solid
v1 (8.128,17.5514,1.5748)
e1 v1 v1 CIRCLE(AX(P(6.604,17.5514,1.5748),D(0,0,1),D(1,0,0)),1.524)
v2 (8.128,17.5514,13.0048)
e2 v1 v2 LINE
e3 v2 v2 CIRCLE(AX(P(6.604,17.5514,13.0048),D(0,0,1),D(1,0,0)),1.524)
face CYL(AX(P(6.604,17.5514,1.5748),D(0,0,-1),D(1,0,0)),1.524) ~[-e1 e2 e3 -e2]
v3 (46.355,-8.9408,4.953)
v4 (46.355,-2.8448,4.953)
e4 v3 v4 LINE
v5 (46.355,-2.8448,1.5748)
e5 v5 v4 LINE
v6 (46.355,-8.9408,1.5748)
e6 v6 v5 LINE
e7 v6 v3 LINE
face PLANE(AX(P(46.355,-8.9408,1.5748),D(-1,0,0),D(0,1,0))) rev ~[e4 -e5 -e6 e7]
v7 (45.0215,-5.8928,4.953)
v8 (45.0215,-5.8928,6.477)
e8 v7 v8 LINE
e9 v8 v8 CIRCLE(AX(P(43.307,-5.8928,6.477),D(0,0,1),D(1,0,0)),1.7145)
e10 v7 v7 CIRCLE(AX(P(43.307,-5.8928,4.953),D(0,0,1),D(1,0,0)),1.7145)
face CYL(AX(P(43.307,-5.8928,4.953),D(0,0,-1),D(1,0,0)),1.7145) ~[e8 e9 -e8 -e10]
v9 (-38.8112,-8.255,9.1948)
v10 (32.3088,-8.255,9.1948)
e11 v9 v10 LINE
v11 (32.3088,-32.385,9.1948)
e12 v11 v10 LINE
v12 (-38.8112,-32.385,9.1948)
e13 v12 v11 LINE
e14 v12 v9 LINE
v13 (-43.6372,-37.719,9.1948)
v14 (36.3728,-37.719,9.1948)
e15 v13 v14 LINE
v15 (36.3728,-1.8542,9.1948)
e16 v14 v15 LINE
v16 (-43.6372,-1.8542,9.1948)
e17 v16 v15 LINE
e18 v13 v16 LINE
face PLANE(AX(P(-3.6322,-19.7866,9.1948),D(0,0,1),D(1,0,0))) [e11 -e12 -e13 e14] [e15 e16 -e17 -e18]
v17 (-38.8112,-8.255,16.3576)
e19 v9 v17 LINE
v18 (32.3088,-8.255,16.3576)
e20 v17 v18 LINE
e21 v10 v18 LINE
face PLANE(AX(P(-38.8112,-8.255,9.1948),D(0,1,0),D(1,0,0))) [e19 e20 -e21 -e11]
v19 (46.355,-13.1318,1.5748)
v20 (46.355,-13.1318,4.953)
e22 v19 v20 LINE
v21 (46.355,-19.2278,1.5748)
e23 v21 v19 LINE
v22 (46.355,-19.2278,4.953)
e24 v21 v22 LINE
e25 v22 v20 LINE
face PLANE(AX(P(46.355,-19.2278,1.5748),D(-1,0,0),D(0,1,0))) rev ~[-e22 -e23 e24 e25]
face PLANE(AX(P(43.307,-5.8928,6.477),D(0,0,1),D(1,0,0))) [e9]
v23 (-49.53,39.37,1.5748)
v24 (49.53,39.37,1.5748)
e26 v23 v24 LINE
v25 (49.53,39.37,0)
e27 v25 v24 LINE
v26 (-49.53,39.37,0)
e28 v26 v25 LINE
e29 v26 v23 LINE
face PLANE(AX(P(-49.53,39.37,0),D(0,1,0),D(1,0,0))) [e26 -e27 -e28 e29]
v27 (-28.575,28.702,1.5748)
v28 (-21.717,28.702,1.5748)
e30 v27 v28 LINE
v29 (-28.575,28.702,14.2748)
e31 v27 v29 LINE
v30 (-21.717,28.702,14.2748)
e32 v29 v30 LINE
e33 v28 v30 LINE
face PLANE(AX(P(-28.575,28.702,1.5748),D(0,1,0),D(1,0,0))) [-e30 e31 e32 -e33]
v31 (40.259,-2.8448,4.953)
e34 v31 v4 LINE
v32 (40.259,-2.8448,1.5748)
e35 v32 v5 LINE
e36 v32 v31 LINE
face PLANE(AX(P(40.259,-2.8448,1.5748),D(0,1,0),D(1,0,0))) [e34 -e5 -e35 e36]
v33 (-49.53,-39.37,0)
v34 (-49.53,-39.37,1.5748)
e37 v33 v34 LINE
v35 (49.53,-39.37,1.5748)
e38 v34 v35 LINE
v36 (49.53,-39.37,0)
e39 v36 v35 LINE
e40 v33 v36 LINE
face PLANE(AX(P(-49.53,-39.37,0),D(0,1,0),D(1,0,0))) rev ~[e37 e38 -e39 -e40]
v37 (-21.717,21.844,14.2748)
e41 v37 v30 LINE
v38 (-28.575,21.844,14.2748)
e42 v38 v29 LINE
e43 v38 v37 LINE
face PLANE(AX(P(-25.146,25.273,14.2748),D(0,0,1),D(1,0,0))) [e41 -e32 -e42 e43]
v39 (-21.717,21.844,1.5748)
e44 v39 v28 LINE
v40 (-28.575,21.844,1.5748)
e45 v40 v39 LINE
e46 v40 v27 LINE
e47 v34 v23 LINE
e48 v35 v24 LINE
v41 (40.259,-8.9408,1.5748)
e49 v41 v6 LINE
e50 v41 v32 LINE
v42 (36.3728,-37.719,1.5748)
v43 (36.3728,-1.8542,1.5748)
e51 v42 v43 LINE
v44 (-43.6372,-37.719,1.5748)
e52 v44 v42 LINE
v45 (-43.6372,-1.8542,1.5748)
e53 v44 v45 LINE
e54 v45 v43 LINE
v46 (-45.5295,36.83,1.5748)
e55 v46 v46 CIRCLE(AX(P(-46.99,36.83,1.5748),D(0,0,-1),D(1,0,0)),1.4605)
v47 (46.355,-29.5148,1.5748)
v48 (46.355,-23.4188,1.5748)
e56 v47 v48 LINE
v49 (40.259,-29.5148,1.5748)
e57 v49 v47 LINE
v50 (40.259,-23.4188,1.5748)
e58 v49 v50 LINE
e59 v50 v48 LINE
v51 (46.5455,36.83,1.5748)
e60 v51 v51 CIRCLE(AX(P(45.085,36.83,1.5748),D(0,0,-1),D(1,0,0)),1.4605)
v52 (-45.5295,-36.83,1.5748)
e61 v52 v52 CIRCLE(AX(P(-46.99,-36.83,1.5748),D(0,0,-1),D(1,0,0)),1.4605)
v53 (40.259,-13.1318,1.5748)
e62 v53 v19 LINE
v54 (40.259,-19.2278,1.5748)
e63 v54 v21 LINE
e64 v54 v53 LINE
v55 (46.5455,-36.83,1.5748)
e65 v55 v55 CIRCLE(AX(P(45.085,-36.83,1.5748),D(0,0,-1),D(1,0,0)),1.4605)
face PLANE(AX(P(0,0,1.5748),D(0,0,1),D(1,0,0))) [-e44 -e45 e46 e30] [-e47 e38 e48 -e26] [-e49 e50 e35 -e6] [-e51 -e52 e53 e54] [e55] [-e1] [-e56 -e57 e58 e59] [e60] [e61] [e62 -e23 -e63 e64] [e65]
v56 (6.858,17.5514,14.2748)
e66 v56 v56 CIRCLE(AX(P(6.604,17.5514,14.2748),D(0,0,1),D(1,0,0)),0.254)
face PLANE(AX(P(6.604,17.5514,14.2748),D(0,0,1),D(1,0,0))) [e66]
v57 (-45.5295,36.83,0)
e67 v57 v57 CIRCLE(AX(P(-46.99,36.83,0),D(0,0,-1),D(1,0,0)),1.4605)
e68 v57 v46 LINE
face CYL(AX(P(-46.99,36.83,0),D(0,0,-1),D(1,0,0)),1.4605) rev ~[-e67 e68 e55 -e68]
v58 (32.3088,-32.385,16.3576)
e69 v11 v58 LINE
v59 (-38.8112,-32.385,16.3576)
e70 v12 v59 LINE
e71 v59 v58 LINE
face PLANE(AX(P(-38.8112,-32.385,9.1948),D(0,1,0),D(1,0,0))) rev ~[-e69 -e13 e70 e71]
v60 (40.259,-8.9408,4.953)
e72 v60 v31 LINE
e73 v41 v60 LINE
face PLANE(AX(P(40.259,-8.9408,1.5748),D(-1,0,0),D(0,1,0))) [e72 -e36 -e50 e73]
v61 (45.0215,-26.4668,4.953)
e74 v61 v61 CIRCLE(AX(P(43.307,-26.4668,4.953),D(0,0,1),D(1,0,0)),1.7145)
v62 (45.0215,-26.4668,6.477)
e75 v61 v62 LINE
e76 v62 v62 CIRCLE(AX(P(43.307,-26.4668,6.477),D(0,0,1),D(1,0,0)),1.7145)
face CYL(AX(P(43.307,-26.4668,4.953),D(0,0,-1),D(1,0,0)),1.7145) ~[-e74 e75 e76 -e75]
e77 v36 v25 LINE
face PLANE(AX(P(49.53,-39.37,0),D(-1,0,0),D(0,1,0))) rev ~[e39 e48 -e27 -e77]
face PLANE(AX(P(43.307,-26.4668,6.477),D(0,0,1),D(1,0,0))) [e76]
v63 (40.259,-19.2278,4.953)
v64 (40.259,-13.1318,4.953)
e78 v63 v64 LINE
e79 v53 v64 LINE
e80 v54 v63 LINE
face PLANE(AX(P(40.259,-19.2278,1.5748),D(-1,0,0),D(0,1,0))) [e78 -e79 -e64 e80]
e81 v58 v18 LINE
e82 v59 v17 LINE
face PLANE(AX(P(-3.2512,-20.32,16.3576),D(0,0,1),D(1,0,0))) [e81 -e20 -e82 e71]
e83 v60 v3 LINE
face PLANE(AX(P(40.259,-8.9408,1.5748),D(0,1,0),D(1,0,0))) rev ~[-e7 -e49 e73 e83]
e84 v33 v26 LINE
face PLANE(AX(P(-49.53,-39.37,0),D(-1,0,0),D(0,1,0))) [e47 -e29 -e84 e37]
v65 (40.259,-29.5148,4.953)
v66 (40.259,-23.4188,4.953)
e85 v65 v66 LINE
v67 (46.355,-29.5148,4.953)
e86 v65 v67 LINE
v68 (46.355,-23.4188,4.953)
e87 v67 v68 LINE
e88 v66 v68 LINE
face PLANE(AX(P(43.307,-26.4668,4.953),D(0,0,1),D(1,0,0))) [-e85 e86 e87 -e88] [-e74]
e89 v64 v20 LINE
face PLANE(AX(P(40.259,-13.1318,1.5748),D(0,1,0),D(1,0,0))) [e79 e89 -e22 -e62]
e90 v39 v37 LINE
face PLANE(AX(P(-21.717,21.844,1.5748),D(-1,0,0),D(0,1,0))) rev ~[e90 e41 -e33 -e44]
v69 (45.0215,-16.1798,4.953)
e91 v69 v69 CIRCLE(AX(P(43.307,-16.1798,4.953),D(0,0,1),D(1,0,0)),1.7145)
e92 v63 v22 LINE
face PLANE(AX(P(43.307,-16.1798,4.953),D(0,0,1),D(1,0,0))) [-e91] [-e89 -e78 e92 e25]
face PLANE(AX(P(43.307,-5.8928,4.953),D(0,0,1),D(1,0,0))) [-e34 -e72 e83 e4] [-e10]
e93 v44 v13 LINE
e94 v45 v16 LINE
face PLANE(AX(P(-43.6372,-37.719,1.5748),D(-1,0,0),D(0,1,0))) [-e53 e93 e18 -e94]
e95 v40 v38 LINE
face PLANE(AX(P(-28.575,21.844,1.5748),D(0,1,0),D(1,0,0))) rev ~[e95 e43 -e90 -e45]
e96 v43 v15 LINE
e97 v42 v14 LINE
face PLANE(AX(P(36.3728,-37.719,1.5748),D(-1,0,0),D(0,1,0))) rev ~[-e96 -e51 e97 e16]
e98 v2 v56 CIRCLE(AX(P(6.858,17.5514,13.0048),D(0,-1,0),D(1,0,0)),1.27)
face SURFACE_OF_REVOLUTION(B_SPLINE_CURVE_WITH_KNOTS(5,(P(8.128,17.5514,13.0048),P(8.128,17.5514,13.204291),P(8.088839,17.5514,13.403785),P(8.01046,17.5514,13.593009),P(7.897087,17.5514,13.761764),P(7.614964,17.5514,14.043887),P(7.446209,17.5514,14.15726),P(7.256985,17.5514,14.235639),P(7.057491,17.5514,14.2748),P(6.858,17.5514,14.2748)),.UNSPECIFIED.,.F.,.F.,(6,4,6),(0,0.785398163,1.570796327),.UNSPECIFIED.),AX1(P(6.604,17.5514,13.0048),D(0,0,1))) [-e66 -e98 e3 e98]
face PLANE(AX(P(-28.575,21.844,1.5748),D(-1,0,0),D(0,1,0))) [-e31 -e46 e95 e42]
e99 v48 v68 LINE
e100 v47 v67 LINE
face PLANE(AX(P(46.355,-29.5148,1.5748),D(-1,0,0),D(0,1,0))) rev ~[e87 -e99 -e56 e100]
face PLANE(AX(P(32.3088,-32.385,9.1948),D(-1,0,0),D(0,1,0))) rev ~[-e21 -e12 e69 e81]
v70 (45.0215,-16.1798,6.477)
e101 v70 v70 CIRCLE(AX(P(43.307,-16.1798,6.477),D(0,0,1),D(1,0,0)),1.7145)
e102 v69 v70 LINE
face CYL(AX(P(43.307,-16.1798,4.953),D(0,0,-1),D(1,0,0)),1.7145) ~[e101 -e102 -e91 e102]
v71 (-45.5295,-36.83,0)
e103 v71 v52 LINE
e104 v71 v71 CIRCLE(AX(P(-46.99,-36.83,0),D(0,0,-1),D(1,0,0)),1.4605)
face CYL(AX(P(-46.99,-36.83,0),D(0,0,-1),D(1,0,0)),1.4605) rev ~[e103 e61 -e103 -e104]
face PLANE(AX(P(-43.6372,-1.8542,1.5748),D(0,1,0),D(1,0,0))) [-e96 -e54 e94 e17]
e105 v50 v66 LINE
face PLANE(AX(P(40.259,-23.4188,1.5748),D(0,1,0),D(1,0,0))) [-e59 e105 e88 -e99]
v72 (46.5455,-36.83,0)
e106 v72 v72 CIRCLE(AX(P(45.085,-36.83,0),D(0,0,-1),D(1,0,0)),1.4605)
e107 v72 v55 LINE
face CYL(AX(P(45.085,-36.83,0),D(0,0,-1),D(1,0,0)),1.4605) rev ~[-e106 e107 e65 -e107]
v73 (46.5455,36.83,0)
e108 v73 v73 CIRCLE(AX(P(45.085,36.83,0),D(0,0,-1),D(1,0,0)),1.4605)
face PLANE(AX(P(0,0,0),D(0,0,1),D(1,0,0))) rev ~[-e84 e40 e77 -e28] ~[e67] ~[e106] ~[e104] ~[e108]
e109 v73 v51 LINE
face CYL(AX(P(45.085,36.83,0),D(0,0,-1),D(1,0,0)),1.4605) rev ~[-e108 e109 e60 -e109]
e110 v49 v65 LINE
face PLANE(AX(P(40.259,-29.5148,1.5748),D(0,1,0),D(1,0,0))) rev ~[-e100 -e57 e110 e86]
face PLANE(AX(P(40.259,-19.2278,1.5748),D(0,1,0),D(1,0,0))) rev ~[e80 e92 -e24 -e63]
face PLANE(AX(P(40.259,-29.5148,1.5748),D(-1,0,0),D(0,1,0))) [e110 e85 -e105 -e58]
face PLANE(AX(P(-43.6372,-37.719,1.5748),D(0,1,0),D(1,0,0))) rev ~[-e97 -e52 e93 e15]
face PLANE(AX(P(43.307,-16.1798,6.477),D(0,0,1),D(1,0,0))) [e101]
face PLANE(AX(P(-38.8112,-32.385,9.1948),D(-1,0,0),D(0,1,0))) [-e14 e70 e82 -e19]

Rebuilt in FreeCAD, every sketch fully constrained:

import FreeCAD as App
import Part
import Sketcher
Q = App.Units.Quantity


def edges_at(feature, points):
    """Names of the edges that pass closest to the given points."""
    edges = feature.Shape.Edges
    near = lambda p: min(range(len(edges)), key=lambda i: edges[i].distToShape(Part.Vertex(*p))[0])
    return sorted({f"Edge{near(p) + 1}" for p in points})


def add_polygon(sketch, points):
    """Adds a closed chain of lines whose ends are joined by coincident constraints."""
    first, n = sketch.GeometryCount, len(points)
    for a, b in zip(points, points[1:] + points[:1]):
        sketch.addGeometry(Part.LineSegment(App.Vector(*a, 0), App.Vector(*b, 0)), False)
    for i in range(n):
        sketch.addConstraint(Sketcher.Constraint("Coincident", first + i, 2, first + (i + 1) % n, 1))

doc = App.newDocument("Part")
body = doc.addObject("PartDesign::Body", "Body")

# Sketch on XY plane
sketch1 = body.newObject("Sketcher::SketchObject", "Sketch")
sketch1.AttachmentSupport = (doc.getObject("XY_Plane"), [""])
sketch1.MapMode = "FlatFace"
add_polygon(sketch1, [(-49.53, 39.37), (-49.53, -39.37), (49.53, -39.37), (49.53, 39.37)])  # lines 0-3
sketch1.addConstraint(Sketcher.Constraint("Vertical", 0))
sketch1.addConstraint(Sketcher.Constraint("Horizontal", 1))
sketch1.addConstraint(Sketcher.Constraint("Vertical", 2))
sketch1.addConstraint(Sketcher.Constraint("Horizontal", 3))
sketch1.addConstraint(Sketcher.Constraint("Symmetric", 0, 2, 2, 2, -1, 1))
sketch1.addConstraint(Sketcher.Constraint("DistanceX", 1, 1, 1, 2, Q("3.9 in")))
sketch1.addConstraint(Sketcher.Constraint("DistanceY", 0, 2, 0, 1, Q("3.1 in")))
pad1 = body.newObject("PartDesign::Pad", "Pad")
pad1.Profile = sketch1
pad1.Length = Q("0.062 in")

# Sketch on XY plane
sketch2 = body.newObject("Sketcher::SketchObject", "Sketch001")
sketch2.AttachmentSupport = (doc.getObject("XY_Plane"), [""])
sketch2.MapMode = "FlatFace"
sketch2.AttachmentOffset = App.Placement(App.Vector(0, 0, 0.062 * 25.4), App.Rotation())
add_polygon(sketch2, [(-43.6372, -1.8542), (-43.6372, -37.719), (36.3728, -37.719), (36.3728, -1.8542)])  # lines 0-3
sketch2.addConstraint(Sketcher.Constraint("Vertical", 0))
sketch2.addConstraint(Sketcher.Constraint("Horizontal", 1))
sketch2.addConstraint(Sketcher.Constraint("Vertical", 2))
sketch2.addConstraint(Sketcher.Constraint("Horizontal", 3))
sketch2.addConstraint(Sketcher.Constraint("DistanceX", 1, 1, 1, 2, Q("3.15 in")))
sketch2.addConstraint(Sketcher.Constraint("DistanceY", 0, 2, 0, 1, Q("1.412 in")))
sketch2.addConstraint(Sketcher.Constraint("DistanceX", 0, 2, -1, 1, Q("1.718 in")))
sketch2.addConstraint(Sketcher.Constraint("DistanceY", 0, 2, -1, 1, Q("1.485 in")))
pad2 = body.newObject("PartDesign::Pad", "Pad001")
pad2.Profile = sketch2
pad2.Length = Q("0.3 in")

# Sketch on XY plane
sketch3 = body.newObject("Sketcher::SketchObject", "Sketch002")
sketch3.AttachmentSupport = (doc.getObject("XY_Plane"), [""])
sketch3.MapMode = "FlatFace"
sketch3.AttachmentOffset = App.Placement(App.Vector(0, 0, 0.362 * 25.4), App.Rotation())
add_polygon(sketch3, [(-38.8112, -8.255), (-38.8112, -32.385), (32.3088, -32.385), (32.3088, -8.255)])  # lines 0-3
sketch3.addConstraint(Sketcher.Constraint("Vertical", 0))
sketch3.addConstraint(Sketcher.Constraint("Horizontal", 1))
sketch3.addConstraint(Sketcher.Constraint("Vertical", 2))
sketch3.addConstraint(Sketcher.Constraint("Horizontal", 3))
sketch3.addConstraint(Sketcher.Constraint("DistanceX", 1, 1, 1, 2, Q("2.8 in")))
sketch3.addConstraint(Sketcher.Constraint("DistanceY", 0, 2, 0, 1, Q("0.95 in")))
sketch3.addConstraint(Sketcher.Constraint("DistanceX", 0, 2, -1, 1, Q("1.528 in")))
sketch3.addConstraint(Sketcher.Constraint("DistanceY", 0, 2, -1, 1, Q("1.275 in")))
pad3 = body.newObject("PartDesign::Pad", "Pad002")
pad3.Profile = sketch3
pad3.Length = Q("0.282 in")

# Sketch on XY plane
sketch4 = body.newObject("Sketcher::SketchObject", "Sketch003")
sketch4.AttachmentSupport = (doc.getObject("XY_Plane"), [""])
sketch4.MapMode = "FlatFace"
sketch4.AttachmentOffset = App.Placement(App.Vector(0, 0, 0.062 * 25.4), App.Rotation())
add_polygon(sketch4, [(40.259, -23.4188), (40.259, -29.5148), (46.355, -29.5148), (46.355, -23.4188)])  # lines 0-3
add_polygon(sketch4, [(40.259, -13.1318), (40.259, -19.2278), (46.355, -19.2278), (46.355, -13.1318)])  # lines 4-7
add_polygon(sketch4, [(40.259, -2.8448), (40.259, -8.9408), (46.355, -8.9408), (46.355, -2.8448)])  # lines 8-11
sketch4.addConstraint(Sketcher.Constraint("Vertical", 0))
sketch4.addConstraint(Sketcher.Constraint("Horizontal", 1))
sketch4.addConstraint(Sketcher.Constraint("Vertical", 2))
sketch4.addConstraint(Sketcher.Constraint("Horizontal", 3))
sketch4.addConstraint(Sketcher.Constraint("Vertical", 4))
sketch4.addConstraint(Sketcher.Constraint("Horizontal", 5))
sketch4.addConstraint(Sketcher.Constraint("Vertical", 6))
sketch4.addConstraint(Sketcher.Constraint("Horizontal", 7))
sketch4.addConstraint(Sketcher.Constraint("Vertical", 8))
sketch4.addConstraint(Sketcher.Constraint("Horizontal", 9))
sketch4.addConstraint(Sketcher.Constraint("Vertical", 10))
sketch4.addConstraint(Sketcher.Constraint("Horizontal", 11))
sketch4.addConstraint(Sketcher.Constraint("Vertical", 3, 2, 4, 2))
sketch4.addConstraint(Sketcher.Constraint("Vertical", 2, 2, 5, 2))
sketch4.addConstraint(Sketcher.Constraint("Vertical", 7, 2, 8, 2))
sketch4.addConstraint(Sketcher.Constraint("Vertical", 6, 2, 9, 2))
sketch4.addConstraint(Sketcher.Constraint("Equal", 11, 0))
sketch4.addConstraint(Sketcher.Constraint("Equal", 2, 4))
sketch4.addConstraint(Sketcher.Constraint("Equal", 6, 8))
sketch4.addConstraint(Sketcher.Constraint("DistanceX", 1, 1, 1, 2, Q("0.24 in")))
sketch4.addConstraint(Sketcher.Constraint("DistanceY", 3, 2, 8, 2, Q("0.57 in")))
sketch4.addConstraint(Sketcher.Constraint("DistanceX", -1, 1, 0, 2, Q("1.585 in")))
sketch4.addConstraint(Sketcher.Constraint("DistanceY", 0, 2, -1, 1, Q("1.162 in")))
sketch4.addConstraint(Sketcher.Constraint("DistanceY", 4, 2, -1, 1, Q("0.757 in")))
pad4 = body.newObject("PartDesign::Pad", "Pad003")
pad4.Profile = sketch4
pad4.Length = Q("0.133 in")

# Sketch on XY plane
sketch5 = body.newObject("Sketcher::SketchObject", "Sketch004")
sketch5.AttachmentSupport = (doc.getObject("XY_Plane"), [""])
sketch5.MapMode = "FlatFace"
sketch5.AttachmentOffset = App.Placement(App.Vector(0, 0, 0.195 * 25.4), App.Rotation())
sketch5.addGeometry(Part.Circle(App.Vector(43.307, -5.8928, 0), App.Vector(0, 0, 1), 1.7145), False)
sketch5.addGeometry(Part.Circle(App.Vector(43.307, -16.1798, 0), App.Vector(0, 0, 1), 1.7145), False)
sketch5.addGeometry(Part.Circle(App.Vector(43.307, -26.4668, 0), App.Vector(0, 0, 1), 1.7145), False)
sketch5.addConstraint(Sketcher.Constraint("Equal", 0, 1))
sketch5.addConstraint(Sketcher.Constraint("Equal", 1, 2))
sketch5.addConstraint(Sketcher.Constraint("Vertical", 0, 3, 1, 3))
sketch5.addConstraint(Sketcher.Constraint("Vertical", 1, 3, 2, 3))
sketch5.addConstraint(Sketcher.Constraint("Diameter", 0, Q("0.135 in")))
sketch5.addConstraint(Sketcher.Constraint("DistanceY", 2, 3, 0, 3, Q("0.81 in")))
sketch5.addConstraint(Sketcher.Constraint("DistanceX", -1, 1, 0, 3, Q("1.705 in")))
sketch5.addConstraint(Sketcher.Constraint("DistanceY", 0, 3, -1, 1, Q("0.232 in")))
sketch5.addConstraint(Sketcher.Constraint("DistanceY", 1, 3, -1, 1, Q("0.637 in")))
pad5 = body.newObject("PartDesign::Pad", "Pad004")
pad5.Profile = sketch5
pad5.Length = Q("0.06 in")

# Sketch on XY plane
sketch6 = body.newObject("Sketcher::SketchObject", "Sketch005")
sketch6.AttachmentSupport = (doc.getObject("XY_Plane"), [""])
sketch6.MapMode = "FlatFace"
sketch6.AttachmentOffset = App.Placement(App.Vector(0, 0, 0.062 * 25.4), App.Rotation())
sketch6.addGeometry(Part.Circle(App.Vector(6.604, 17.5514, 0), App.Vector(0, 0, 1), 1.524), False)
sketch6.addConstraint(Sketcher.Constraint("Diameter", 0, Q("0.12 in")))
sketch6.addConstraint(Sketcher.Constraint("DistanceX", -1, 1, 0, 3, Q("0.26 in")))
sketch6.addConstraint(Sketcher.Constraint("DistanceY", -1, 1, 0, 3, Q("0.691 in")))
pad6 = body.newObject("PartDesign::Pad", "Pad005")
pad6.Profile = sketch6
pad6.Length = Q("0.5 in")
doc.recompute()

fillet = body.newObject("PartDesign::Fillet", "Fillet")
fillet.Base = (pad6, edges_at(pad6, [(5.08, 17.551, 14.275)]))
fillet.Radius = Q("0.05 in")

# Sketch on XY plane
sketch7 = body.newObject("Sketcher::SketchObject", "Sketch006")
sketch7.AttachmentSupport = (doc.getObject("XY_Plane"), [""])
sketch7.MapMode = "FlatFace"
sketch7.AttachmentOffset = App.Placement(App.Vector(0, 0, 0.062 * 25.4), App.Rotation())
add_polygon(sketch7, [(-28.575, 28.702), (-28.575, 21.844), (-21.717, 21.844), (-21.717, 28.702)])  # lines 0-3
sketch7.addConstraint(Sketcher.Constraint("Vertical", 0))
sketch7.addConstraint(Sketcher.Constraint("Horizontal", 1))
sketch7.addConstraint(Sketcher.Constraint("Vertical", 2))
sketch7.addConstraint(Sketcher.Constraint("Horizontal", 3))
sketch7.addConstraint(Sketcher.Constraint("Equal", 3, 0))
sketch7.addConstraint(Sketcher.Constraint("DistanceX", 1, 1, 1, 2, Q("0.27 in")))
sketch7.addConstraint(Sketcher.Constraint("DistanceY", -1, 1, 0, 2, Q("0.86 in")))
sketch7.addConstraint(Sketcher.Constraint("DistanceX", 0, 2, -1, 1, Q("1.125 in")))
pad7 = body.newObject("PartDesign::Pad", "Pad006")
pad7.Profile = sketch7
pad7.Length = Q("0.5 in")

# Sketch on XY plane
sketch8 = body.newObject("Sketcher::SketchObject", "Sketch007")
sketch8.AttachmentSupport = (doc.getObject("XY_Plane"), [""])
sketch8.MapMode = "FlatFace"
sketch8.addGeometry(Part.Circle(App.Vector(-46.99, -36.83, 0), App.Vector(0, 0, 1), 1.4605), False)
sketch8.addGeometry(Part.Circle(App.Vector(45.085, -36.83, 0), App.Vector(0, 0, 1), 1.4605), False)
sketch8.addGeometry(Part.Circle(App.Vector(45.085, 36.83, 0), App.Vector(0, 0, 1), 1.4605), False)
sketch8.addGeometry(Part.Circle(App.Vector(-46.99, 36.83, 0), App.Vector(0, 0, 1), 1.4605), False)
sketch8.addConstraint(Sketcher.Constraint("Equal", 0, 1))
sketch8.addConstraint(Sketcher.Constraint("Equal", 1, 2))
sketch8.addConstraint(Sketcher.Constraint("Equal", 2, 3))
sketch8.addConstraint(Sketcher.Constraint("Symmetric", 1, 3, 2, 3, -1))
sketch8.addConstraint(Sketcher.Constraint("Symmetric", 0, 3, 3, 3, -1))
sketch8.addConstraint(Sketcher.Constraint("Horizontal", 0, 3, 1, 3))
sketch8.addConstraint(Sketcher.Constraint("Diameter", 0, Q("0.115 in")))
sketch8.addConstraint(Sketcher.Constraint("DistanceY", 1, 3, 2, 3, Q("2.9 in")))
sketch8.addConstraint(Sketcher.Constraint("DistanceX", 0, 3, -1, 1, Q("1.85 in")))
sketch8.addConstraint(Sketcher.Constraint("DistanceX", -1, 1, 1, 3, Q("1.775 in")))
pocket1 = body.newObject("PartDesign::Pocket", "Pocket")
pocket1.Profile = sketch8
pocket1.Type = "ThroughAll"
pocket1.Reversed = True

doc.recompute()
